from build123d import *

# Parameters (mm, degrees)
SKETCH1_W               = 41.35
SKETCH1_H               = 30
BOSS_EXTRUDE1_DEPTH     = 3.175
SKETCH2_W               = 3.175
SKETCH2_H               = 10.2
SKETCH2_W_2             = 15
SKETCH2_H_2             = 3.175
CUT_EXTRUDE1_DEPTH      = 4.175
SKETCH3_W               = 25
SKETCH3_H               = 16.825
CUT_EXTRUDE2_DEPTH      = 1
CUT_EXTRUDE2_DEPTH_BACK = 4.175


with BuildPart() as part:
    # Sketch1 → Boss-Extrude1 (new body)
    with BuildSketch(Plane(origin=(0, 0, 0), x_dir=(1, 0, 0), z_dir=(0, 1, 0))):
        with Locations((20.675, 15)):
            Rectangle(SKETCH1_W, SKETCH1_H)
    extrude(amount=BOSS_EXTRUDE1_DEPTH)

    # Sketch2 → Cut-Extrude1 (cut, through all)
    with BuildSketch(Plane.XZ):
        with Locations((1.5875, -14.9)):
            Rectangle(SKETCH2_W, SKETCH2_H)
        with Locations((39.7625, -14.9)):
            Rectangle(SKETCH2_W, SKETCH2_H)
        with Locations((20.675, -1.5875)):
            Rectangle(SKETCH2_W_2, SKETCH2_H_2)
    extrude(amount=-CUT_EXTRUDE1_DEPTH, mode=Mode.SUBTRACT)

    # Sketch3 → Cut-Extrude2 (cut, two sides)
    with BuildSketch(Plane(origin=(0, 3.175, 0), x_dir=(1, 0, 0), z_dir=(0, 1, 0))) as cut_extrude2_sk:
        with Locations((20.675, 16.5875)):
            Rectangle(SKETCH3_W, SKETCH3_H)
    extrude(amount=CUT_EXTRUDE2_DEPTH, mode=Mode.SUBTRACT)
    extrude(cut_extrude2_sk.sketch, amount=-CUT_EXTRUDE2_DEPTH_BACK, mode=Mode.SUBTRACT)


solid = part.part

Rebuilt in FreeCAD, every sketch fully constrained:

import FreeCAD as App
import Part
import Sketcher

V = App.Vector
Q = App.Units.Quantity


def add_polygon(sketch, points):
    """Adds a closed chain of lines whose ends are joined by coincident constraints."""
    first, n = sketch.GeometryCount, len(points)
    for a, b in zip(points, points[1:] + points[:1]):
        sketch.addGeometry(Part.LineSegment(App.Vector(*a, 0), App.Vector(*b, 0)), False)
    for i in range(n):
        sketch.addConstraint(Sketcher.Constraint("Coincident", first + i, 2, first + (i + 1) % n, 1))

doc = App.newDocument("Part")
body = doc.addObject("PartDesign::Body", "Body")

# Sketch on XZ plane
sketch1 = body.newObject("Sketcher::SketchObject", "Sketch")
sketch1.AttachmentSupport = (doc.getObject("XZ_Plane"), [""])
sketch1.MapMode = "FlatFace"
add_polygon(sketch1, [(0, -30), (0, 0), (41, 0), (41, -30)])  # lines 0-3
sketch1.addConstraint([
    Sketcher.Constraint("Vertical", 0),
    Sketcher.Constraint("Horizontal", 1),
    Sketcher.Constraint("Vertical", 2),
    Sketcher.Constraint("Horizontal", 3),
    Sketcher.Constraint("Coincident", 0, 2, -1, 1),
    Sketcher.Constraint("DistanceY", 0, 1, 0, 2, Q("30 mm")),
    Sketcher.Constraint("DistanceX", 1, 1, 1, 2, Q("41.35 mm")),
])
pad1 = body.newObject("PartDesign::Pad", "Pad")
pad1.Profile = sketch1
pad1.Length = 3.175
pad1.Reversed = True

# Sketch on XZ plane
sketch2 = body.newObject("Sketcher::SketchObject", "Sketch001")
sketch2.AttachmentSupport = (doc.getObject("XZ_Plane"), [""])
sketch2.MapMode = "FlatFace"
add_polygon(sketch2, [(0, -9.8), (0, -20), (3.2, -20), (3.2, -9.8)])  # lines 0-3
add_polygon(sketch2, [(38.2, -9.8), (38.2, -20), (41.4, -20), (41.4, -9.8)])  # lines 4-7
add_polygon(sketch2, [(13.2, 0), (13.2, -3.2), (28.2, -3.2), (28.2, 0)])  # lines 8-11
sketch2.addConstraint([
    Sketcher.Constraint("Vertical", 0),
    Sketcher.Constraint("Horizontal", 1),
    Sketcher.Constraint("Vertical", 2),
    Sketcher.Constraint("Horizontal", 3),
    Sketcher.Constraint("Vertical", 4),
    Sketcher.Constraint("Horizontal", 5),
    Sketcher.Constraint("Vertical", 6),
    Sketcher.Constraint("Horizontal", 7),
    Sketcher.Constraint("Vertical", 8),
    Sketcher.Constraint("Horizontal", 9),
    Sketcher.Constraint("Vertical", 10),
    Sketcher.Constraint("Horizontal", 11),
    Sketcher.Constraint("PointOnObject", 0, 2, -2),
    Sketcher.Constraint("PointOnObject", 10, 2, -1),
    Sketcher.Constraint("Horizontal", 1, 2, 4, 2),
    Sketcher.Constraint("Horizontal", 3, 2, 6, 2),
    Sketcher.Constraint("Equal", 3, 5),
    Sketcher.Constraint("Equal", 7, 8),
    Sketcher.Constraint("DistanceX", 9, 1, 9, 2, Q("15 mm")),
    Sketcher.Constraint("DistanceY", 0, 2, 0, 1, Q("10.2 mm")),
    Sketcher.Constraint("DistanceY", 0, 2, -1, 1, Q("20 mm")),
    Sketcher.Constraint("DistanceX", 1, 2, 4, 2, Q("35 mm")),
    Sketcher.Constraint("DistanceX", 2, 2, 8, 2, Q("10 mm")),
    Sketcher.Constraint("DistanceX", 1, 1, 1, 2, Q("3.175 mm")),
])
pocket1 = body.newObject("PartDesign::Pocket", "Pocket")
pocket1.Profile = sketch2
pocket1.Type = "ThroughAll"

# Sketch on XZ plane
sketch3 = body.newObject("Sketcher::SketchObject", "Sketch002")
sketch3.AttachmentSupport = (doc.getObject("XZ_Plane"), [""])
sketch3.MapMode = "FlatFace"
sketch3.AttachmentOffset = App.Placement(V(0, 0, -3.175), App.Rotation())
add_polygon(sketch3, [(8, -25), (8, -8), (33, -8), (33, -25)])  # lines 0-3
sketch3.addConstraint([
    Sketcher.Constraint("Vertical", 0),
    Sketcher.Constraint("Horizontal", 1),
    Sketcher.Constraint("Vertical", 2),
    Sketcher.Constraint("Horizontal", 3),
    Sketcher.Constraint("DistanceX", 1, 1, 1, 2, Q("25 mm")),
    Sketcher.Constraint("DistanceY", 2, 2, -1, 1, Q("25 mm")),
    Sketcher.Constraint("DistanceY", 0, 1, 0, 2, Q("16.825 mm")),
    Sketcher.Constraint("DistanceX", -1, 1, 0, 2, Q("8.175 mm")),
])
pocket2 = body.newObject("PartDesign::Pocket", "Pocket001")
pocket2.Profile = sketch3
pocket2.Type = "ThroughAll"
pocket2.Midplane = True

doc.recompute()
